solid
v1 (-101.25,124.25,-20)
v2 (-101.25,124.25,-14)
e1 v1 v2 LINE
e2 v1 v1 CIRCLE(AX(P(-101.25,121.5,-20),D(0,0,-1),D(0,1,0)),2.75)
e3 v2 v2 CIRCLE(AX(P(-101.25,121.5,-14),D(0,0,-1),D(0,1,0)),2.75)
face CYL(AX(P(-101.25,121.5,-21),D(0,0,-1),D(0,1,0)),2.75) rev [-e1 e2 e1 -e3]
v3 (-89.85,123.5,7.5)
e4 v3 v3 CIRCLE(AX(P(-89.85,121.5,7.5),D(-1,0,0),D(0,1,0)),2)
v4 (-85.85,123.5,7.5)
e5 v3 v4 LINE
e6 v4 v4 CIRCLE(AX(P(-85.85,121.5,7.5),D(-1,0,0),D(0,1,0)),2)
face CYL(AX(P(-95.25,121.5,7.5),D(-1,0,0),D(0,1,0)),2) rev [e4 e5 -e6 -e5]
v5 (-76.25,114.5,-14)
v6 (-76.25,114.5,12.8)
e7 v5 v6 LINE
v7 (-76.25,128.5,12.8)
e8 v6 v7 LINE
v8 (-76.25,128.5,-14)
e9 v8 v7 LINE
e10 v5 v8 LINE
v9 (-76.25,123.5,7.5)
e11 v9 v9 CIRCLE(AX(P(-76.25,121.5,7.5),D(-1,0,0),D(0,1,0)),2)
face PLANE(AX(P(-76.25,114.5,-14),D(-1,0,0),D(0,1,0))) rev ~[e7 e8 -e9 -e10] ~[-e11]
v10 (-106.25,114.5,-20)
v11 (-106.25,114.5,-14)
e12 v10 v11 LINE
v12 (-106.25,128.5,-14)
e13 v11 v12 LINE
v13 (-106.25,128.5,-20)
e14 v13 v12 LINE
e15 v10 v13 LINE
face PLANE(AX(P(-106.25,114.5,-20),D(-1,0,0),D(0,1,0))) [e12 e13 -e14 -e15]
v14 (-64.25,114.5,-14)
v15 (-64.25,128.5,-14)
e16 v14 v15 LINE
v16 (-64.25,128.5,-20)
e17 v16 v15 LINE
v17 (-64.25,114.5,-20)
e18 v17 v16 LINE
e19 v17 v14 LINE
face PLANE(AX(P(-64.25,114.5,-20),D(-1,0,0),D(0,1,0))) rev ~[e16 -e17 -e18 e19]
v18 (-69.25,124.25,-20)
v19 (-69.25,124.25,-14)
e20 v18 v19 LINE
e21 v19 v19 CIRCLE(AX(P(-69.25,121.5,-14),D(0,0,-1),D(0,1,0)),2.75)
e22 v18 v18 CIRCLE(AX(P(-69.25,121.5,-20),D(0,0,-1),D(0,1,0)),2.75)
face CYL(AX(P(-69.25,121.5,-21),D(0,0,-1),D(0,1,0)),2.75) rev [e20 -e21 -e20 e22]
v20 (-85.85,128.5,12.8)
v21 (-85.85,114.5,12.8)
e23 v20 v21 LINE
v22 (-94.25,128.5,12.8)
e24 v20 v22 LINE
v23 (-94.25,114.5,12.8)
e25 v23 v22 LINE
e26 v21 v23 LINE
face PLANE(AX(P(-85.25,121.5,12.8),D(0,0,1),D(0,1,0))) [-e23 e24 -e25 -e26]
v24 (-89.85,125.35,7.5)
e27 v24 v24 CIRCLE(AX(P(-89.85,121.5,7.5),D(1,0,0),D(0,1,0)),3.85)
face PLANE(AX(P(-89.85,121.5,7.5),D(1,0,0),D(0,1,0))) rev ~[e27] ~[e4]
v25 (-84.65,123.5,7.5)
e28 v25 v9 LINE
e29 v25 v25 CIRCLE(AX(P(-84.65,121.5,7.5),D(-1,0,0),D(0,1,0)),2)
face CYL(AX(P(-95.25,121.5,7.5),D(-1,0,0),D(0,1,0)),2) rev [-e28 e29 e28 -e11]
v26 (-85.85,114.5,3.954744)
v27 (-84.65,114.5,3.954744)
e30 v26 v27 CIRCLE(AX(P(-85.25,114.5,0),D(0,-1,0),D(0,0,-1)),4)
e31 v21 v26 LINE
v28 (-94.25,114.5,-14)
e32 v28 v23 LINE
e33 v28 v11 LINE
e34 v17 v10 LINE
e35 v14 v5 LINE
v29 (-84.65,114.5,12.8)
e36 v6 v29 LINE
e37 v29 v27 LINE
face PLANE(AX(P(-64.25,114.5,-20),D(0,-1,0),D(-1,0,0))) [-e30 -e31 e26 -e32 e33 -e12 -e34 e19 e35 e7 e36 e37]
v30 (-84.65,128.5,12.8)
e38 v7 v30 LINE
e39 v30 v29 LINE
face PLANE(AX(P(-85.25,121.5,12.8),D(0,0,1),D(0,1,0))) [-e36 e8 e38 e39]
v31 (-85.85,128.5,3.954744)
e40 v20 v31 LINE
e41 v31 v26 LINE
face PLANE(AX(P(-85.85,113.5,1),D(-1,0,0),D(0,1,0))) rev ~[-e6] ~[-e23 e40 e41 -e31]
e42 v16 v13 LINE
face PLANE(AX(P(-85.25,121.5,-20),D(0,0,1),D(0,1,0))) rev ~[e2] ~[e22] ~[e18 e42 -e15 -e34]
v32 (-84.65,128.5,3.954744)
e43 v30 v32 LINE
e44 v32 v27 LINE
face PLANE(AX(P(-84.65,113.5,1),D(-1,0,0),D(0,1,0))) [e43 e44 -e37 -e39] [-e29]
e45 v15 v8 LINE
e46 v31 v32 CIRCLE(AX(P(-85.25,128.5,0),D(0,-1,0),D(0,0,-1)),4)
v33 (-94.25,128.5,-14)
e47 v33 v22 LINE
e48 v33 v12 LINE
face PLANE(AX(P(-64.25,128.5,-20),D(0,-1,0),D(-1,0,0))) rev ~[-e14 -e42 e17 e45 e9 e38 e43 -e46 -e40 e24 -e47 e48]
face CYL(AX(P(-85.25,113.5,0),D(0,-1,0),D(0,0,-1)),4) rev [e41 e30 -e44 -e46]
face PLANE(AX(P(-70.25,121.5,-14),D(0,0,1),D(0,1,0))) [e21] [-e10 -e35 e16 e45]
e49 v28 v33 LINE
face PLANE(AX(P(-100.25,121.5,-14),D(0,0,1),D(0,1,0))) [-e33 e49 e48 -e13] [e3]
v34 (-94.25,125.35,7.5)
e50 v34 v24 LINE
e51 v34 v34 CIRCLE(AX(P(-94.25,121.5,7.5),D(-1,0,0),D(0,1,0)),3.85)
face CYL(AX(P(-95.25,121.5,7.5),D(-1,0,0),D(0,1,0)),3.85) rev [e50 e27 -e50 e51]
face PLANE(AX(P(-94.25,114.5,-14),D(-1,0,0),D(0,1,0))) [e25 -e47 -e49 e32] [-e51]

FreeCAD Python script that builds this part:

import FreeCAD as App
import Part
import Sketcher

V = App.Vector
Q = App.Units.Quantity

doc = App.newDocument("Part")
params = doc.addObject("Spreadsheet::Sheet", "Params")
for row, (alias, value) in enumerate([
    ("sketch1_diameter", "5.5 mm"),
    ("pad1_length", "8 mm"),
    ("sketch2_diameter", "5.5 mm"),
    ("pad2_length", "8 mm"),
    ("sketch3_diameter", "4 mm"),
    ("pad3_length", "20 mm"),
    ("sketch4_width", "16 mm"),
    ("sketch4_height", "1.2 mm"),
    ("pad4_length", "13.8 mm"),
    ("sketch5_diameter", "8 mm"),
    ("pad5_length", "16 mm"),
    ("sketch6_diameter", "7.7 mm"),
    ("pad6_length", "5.4 mm"),
    ("sketch7_width", "14 mm"),
    ("sketch7_height", "12 mm"),
    ("pad7_length", "26.8 mm"),
    ("sketch8_width", "14 mm"),
    ("sketch8_height", "12 mm"),
    ("pad8_length", "26.8 mm"),
    ("sketch9_width", "14 mm"),
    ("sketch9_height", "42 mm"),
    ("pad9_length", "32.8 mm"),
], start=1):
    params.set(f"A{row}", alias)
    params.set(f"B{row}", "=" + value)
    params.setAlias(f"B{row}", alias)

body = doc.addObject("PartDesign::Body", "Body")

sketch1 = body.newObject("Sketcher::SketchObject", "Sketch")
sketch1.AttachmentSupport = (doc.getObject("XY_Plane"), [""])
sketch1.MapMode = "FlatFace"
sketch1.AttachmentOffset = App.Placement(V(0, 0, -1), App.Rotation())
sketch1.addGeometry(Part.Circle(V(7, -16, 0), V(0, 0, 1), 2.8), False)
sketch1.addConstraint([
    Sketcher.Constraint("Diameter", 0, Q("5.5 mm")),
    Sketcher.Constraint("DistanceX", -1, 1, 0, 3, Q("7 mm")),
    Sketcher.Constraint("DistanceY", 0, 3, -1, 1, Q("16 mm")),
])
sketch1.setExpression("Constraints[0]", "Params.sketch1_diameter")
pad1 = body.newObject("PartDesign::Pad", "Pad")
pad1.Profile = sketch1
pad1.setExpression("Length", "Params.pad1_length")
body2 = doc.addObject("PartDesign::Body", "Body001")
body2.AllowCompound = True

sketch2 = body2.newObject("Sketcher::SketchObject", "Sketch001")
sketch2.AttachmentSupport = (doc.getObject("XY_Plane001"), [""])
sketch2.MapMode = "FlatFace"
sketch2.AttachmentOffset = App.Placement(V(0, 0, -1), App.Rotation())
sketch2.addGeometry(Part.Circle(V(7, 16, 0), V(0, 0, 1), 2.8), False)
sketch2.addConstraint([
    Sketcher.Constraint("Diameter", 0, Q("5.5 mm")),
    Sketcher.Constraint("DistanceX", -1, 1, 0, 3, Q("7 mm")),
    Sketcher.Constraint("DistanceY", -1, 1, 0, 3, Q("16 mm")),
])
sketch2.setExpression("Constraints[0]", "Params.sketch2_diameter")
pad2 = body2.newObject("PartDesign::Pad", "Pad001")
pad2.Profile = sketch2
pad2.setExpression("Length", "Params.pad2_length")
doc.recompute()

boolean = body2.newObject("PartDesign::Boolean", "Boolean")
boolean.Type = "Fuse"
boolean.addObjects([body])
body3 = doc.addObject("PartDesign::Body", "Body002")
body3.AllowCompound = True
doc.recompute()

body2.Placement = App.Placement(V(0, -7, 0), App.Rotation(V(0, 0, 1), 90))
boolean2 = body3.newObject("PartDesign::Boolean", "Boolean001")
boolean2.Type = "Fuse"
boolean2.addObjects([body2])
body4 = doc.addObject("PartDesign::Body", "Body003")

sketch3 = body4.newObject("Sketcher::SketchObject", "Sketch002")
sketch3.AttachmentSupport = (doc.getObject("XY_Plane003"), [""])
sketch3.MapMode = "FlatFace"
sketch3.addGeometry(Part.Circle(V(0, 0, 0), V(0, 0, 1), 2), False)
sketch3.addConstraint([
    Sketcher.Constraint("Coincident", 0, 3, -1, 1),
    Sketcher.Constraint("Diameter", 0, Q("4 mm")),
])
sketch3.setExpression("Constraints[1]", "Params.sketch3_diameter")
pad3 = body4.newObject("PartDesign::Pad", "Pad002")
pad3.Profile = sketch3
pad3.setExpression("Length", "Params.pad3_length")
body5 = doc.addObject("PartDesign::Body", "Body004")
doc.recompute()

body4.Placement = App.Placement(V(0, 0, 0), App.Rotation(V(1, 0, 0), 90))
boolean3 = body5.newObject("PartDesign::Boolean", "Boolean002")
boolean3.Type = "Fuse"
boolean3.addObjects([body4])
body6 = doc.addObject("PartDesign::Body", "Body005")
doc.recompute()

body5.Placement = App.Placement(V(7, 10, 27.5), App.Rotation(V(0, 0, 1), 0))
boolean4 = body6.newObject("PartDesign::Boolean", "Boolean003")
boolean4.Type = "Fuse"
boolean4.addObjects([body5])
body7 = doc.addObject("PartDesign::Body", "Body006")

sketch4 = body7.newObject("Sketcher::SketchObject", "Sketch003")
sketch4.AttachmentSupport = (doc.getObject("XY_Plane006"), [""])
sketch4.MapMode = "FlatFace"
sketch4.AttachmentOffset = App.Placement(V(0, 0, 21), App.Rotation())
sketch4.addGeometry([
    Part.LineSegment(V(-1, 0.6, 0), V(-1, -0.6, 0)),
    Part.LineSegment(V(-1, -0.6, 0), V(15, -0.6, 0)),
    Part.LineSegment(V(15, -0.6, 0), V(15, 0.6, 0)),
    Part.LineSegment(V(15, 0.6, 0), V(-1, 0.6, 0)),
], False)
sketch4.addConstraint([
    Sketcher.Constraint("Coincident", 0, 2, 1, 1),
    Sketcher.Constraint("Coincident", 1, 2, 2, 1),
    Sketcher.Constraint("Coincident", 2, 2, 3, 1),
    Sketcher.Constraint("Coincident", 3, 2, 0, 1),
    Sketcher.Constraint("Vertical", 0),
    Sketcher.Constraint("Horizontal", 1),
    Sketcher.Constraint("Vertical", 2),
    Sketcher.Constraint("Horizontal", 3),
    Sketcher.Constraint("DistanceX", 1, 1, 1, 2, Q("16 mm")),
    Sketcher.Constraint("DistanceY", 0, 2, 0, 1, Q("1.2 mm")),
    Sketcher.Constraint("DistanceX", 0, 2, -1, 1, Q("1 mm")),
    Sketcher.Constraint("DistanceY", 0, 2, -1, 1, Q("0.6 mm")),
])
sketch4.setExpression("Constraints[8]", "Params.sketch4_width")
sketch4.setExpression("Constraints[9]", "Params.sketch4_height")
pad4 = body7.newObject("PartDesign::Pad", "Pad003")
pad4.Profile = sketch4
pad4.setExpression("Length", "Params.pad4_length")
body8 = doc.addObject("PartDesign::Body", "Body007")

sketch5 = body8.newObject("Sketcher::SketchObject", "Sketch004")
sketch5.AttachmentSupport = (doc.getObject("XY_Plane007"), [""])
sketch5.MapMode = "FlatFace"
sketch5.addGeometry(Part.Circle(V(0, 0, 0), V(0, 0, 1), 4), False)
sketch5.addConstraint([
    Sketcher.Constraint("Coincident", 0, 3, -1, 1),
    Sketcher.Constraint("Diameter", 0, Q("8 mm")),
])
sketch5.setExpression("Constraints[1]", "Params.sketch5_diameter")
pad5 = body8.newObject("PartDesign::Pad", "Pad004")
pad5.Profile = sketch5
pad5.setExpression("Length", "Params.pad5_length")
body9 = doc.addObject("PartDesign::Body", "Body008")
doc.recompute()

body8.Placement = App.Placement(V(0, 0, 0), App.Rotation(V(0, 1, 0), 90))
boolean5 = body9.newObject("PartDesign::Boolean", "Boolean004")
boolean5.Type = "Fuse"
boolean5.addObjects([body8])
body10 = doc.addObject("PartDesign::Body", "Body009")
doc.recompute()

body9.Placement = App.Placement(V(-1, 0, 20), App.Rotation(V(0, 0, 1), 0))
boolean6 = body10.newObject("PartDesign::Boolean", "Boolean005")
boolean6.Type = "Fuse"
boolean6.addObjects([body9])
body11 = doc.addObject("PartDesign::Body", "Body010")

sketch6 = body11.newObject("Sketcher::SketchObject", "Sketch005")
sketch6.AttachmentSupport = (doc.getObject("XY_Plane010"), [""])
sketch6.MapMode = "FlatFace"
sketch6.addGeometry(Part.Circle(V(0, 0, 0), V(0, 0, 1), 3.9), False)
sketch6.addConstraint([
    Sketcher.Constraint("Coincident", 0, 3, -1, 1),
    Sketcher.Constraint("Diameter", 0, Q("7.7 mm")),
])
sketch6.setExpression("Constraints[1]", "Params.sketch6_diameter")
pad6 = body11.newObject("PartDesign::Pad", "Pad005")
pad6.Profile = sketch6
pad6.setExpression("Length", "Params.pad6_length")
body12 = doc.addObject("PartDesign::Body", "Body011")
doc.recompute()

body11.Placement = App.Placement(V(0, 0, 0), App.Rotation(V(1, 0, 0), 90))
boolean7 = body12.newObject("PartDesign::Boolean", "Boolean006")
boolean7.Type = "Fuse"
boolean7.addObjects([body11])
body13 = doc.addObject("PartDesign::Body", "Body012")
doc.recompute()

body12.Placement = App.Placement(V(7, 10, 27.5), App.Rotation(V(0, 0, 1), 0))
boolean8 = body13.newObject("PartDesign::Boolean", "Boolean007")
boolean8.Type = "Fuse"
boolean8.addObjects([body12])
doc.recompute()

boolean9 = body13.newObject("PartDesign::Boolean", "Boolean008")
boolean9.Type = "Fuse"
boolean9.addObjects([body6])
doc.recompute()

boolean10 = body13.newObject("PartDesign::Boolean", "Boolean009")
boolean10.Type = "Fuse"
boolean10.addObjects([body7])
doc.recompute()

boolean11 = body13.newObject("PartDesign::Boolean", "Boolean010")
boolean11.Type = "Fuse"
boolean11.addObjects([body10])
body14 = doc.addObject("PartDesign::Body", "Body013")

sketch7 = body14.newObject("Sketcher::SketchObject", "Sketch006")
sketch7.AttachmentSupport = (doc.getObject("XY_Plane013"), [""])
sketch7.MapMode = "FlatFace"
sketch7.AttachmentOffset = App.Placement(V(0, 0, 6), App.Rotation())
sketch7.addGeometry([
    Part.LineSegment(V(0, -9, 0), V(0, -21, 0)),
    Part.LineSegment(V(0, -21, 0), V(14, -21, 0)),
    Part.LineSegment(V(14, -21, 0), V(14, -9, 0)),
    Part.LineSegment(V(14, -9, 0), V(0, -9, 0)),
], False)
sketch7.addConstraint([
    Sketcher.Constraint("Coincident", 0, 2, 1, 1),
    Sketcher.Constraint("Coincident", 1, 2, 2, 1),
    Sketcher.Constraint("Coincident", 2, 2, 3, 1),
    Sketcher.Constraint("Coincident", 3, 2, 0, 1),
    Sketcher.Constraint("Vertical", 0),
    Sketcher.Constraint("Horizontal", 1),
    Sketcher.Constraint("Vertical", 2),
    Sketcher.Constraint("Horizontal", 3),
    Sketcher.Constraint("PointOnObject", 0, 2, -2),
    Sketcher.Constraint("DistanceX", 1, 1, 1, 2, Q("14 mm")),
    Sketcher.Constraint("DistanceY", 0, 2, 0, 1, Q("12 mm")),
    Sketcher.Constraint("DistanceY", 0, 2, -1, 1, Q("21 mm")),
])
sketch7.setExpression("Constraints[9]", "Params.sketch7_width")
sketch7.setExpression("Constraints[10]", "Params.sketch7_height")
pad7 = body14.newObject("PartDesign::Pad", "Pad006")
pad7.Profile = sketch7
pad7.setExpression("Length", "Params.pad7_length")
body15 = doc.addObject("PartDesign::Body", "Body014")
body15.AllowCompound = True

sketch8 = body15.newObject("Sketcher::SketchObject", "Sketch007")
sketch8.AttachmentSupport = (doc.getObject("XY_Plane014"), [""])
sketch8.MapMode = "FlatFace"
sketch8.AttachmentOffset = App.Placement(V(0, 0, 6), App.Rotation())
sketch8.addGeometry([
    Part.LineSegment(V(0, 21, 0), V(0, 9, 0)),
    Part.LineSegment(V(0, 9, 0), V(14, 9, 0)),
    Part.LineSegment(V(14, 9, 0), V(14, 21, 0)),
    Part.LineSegment(V(14, 21, 0), V(0, 21, 0)),
], False)
sketch8.addConstraint([
    Sketcher.Constraint("Coincident", 0, 2, 1, 1),
    Sketcher.Constraint("Coincident", 1, 2, 2, 1),
    Sketcher.Constraint("Coincident", 2, 2, 3, 1),
    Sketcher.Constraint("Coincident", 3, 2, 0, 1),
    Sketcher.Constraint("Vertical", 0),
    Sketcher.Constraint("Horizontal", 1),
    Sketcher.Constraint("Vertical", 2),
    Sketcher.Constraint("Horizontal", 3),
    Sketcher.Constraint("PointOnObject", 0, 2, -2),
    Sketcher.Constraint("DistanceX", 1, 1, 1, 2, Q("14 mm")),
    Sketcher.Constraint("DistanceY", 0, 2, 0, 1, Q("12 mm")),
    Sketcher.Constraint("DistanceY", -1, 1, 0, 2, Q("9 mm")),
])
sketch8.setExpression("Constraints[9]", "Params.sketch8_width")
sketch8.setExpression("Constraints[10]", "Params.sketch8_height")
pad8 = body15.newObject("PartDesign::Pad", "Pad007")
pad8.Profile = sketch8
pad8.setExpression("Length", "Params.pad8_length")
doc.recompute()

boolean12 = body15.newObject("PartDesign::Boolean", "Boolean011")
boolean12.Type = "Fuse"
boolean12.addObjects([body14])
body16 = doc.addObject("PartDesign::Body", "Body015")

sketch9 = body16.newObject("Sketcher::SketchObject", "Sketch008")
sketch9.AttachmentSupport = (doc.getObject("XY_Plane015"), [""])
sketch9.MapMode = "FlatFace"
sketch9.addGeometry([
    Part.LineSegment(V(0, 21, 0), V(0, -21, 0)),
    Part.LineSegment(V(0, -21, 0), V(14, -21, 0)),
    Part.LineSegment(V(14, -21, 0), V(14, 21, 0)),
    Part.LineSegment(V(14, 21, 0), V(0, 21, 0)),
], False)
sketch9.addConstraint([
    Sketcher.Constraint("Coincident", 0, 2, 1, 1),
    Sketcher.Constraint("Coincident", 1, 2, 2, 1),
    Sketcher.Constraint("Coincident", 2, 2, 3, 1),
    Sketcher.Constraint("Coincident", 3, 2, 0, 1),
    Sketcher.Constraint("Vertical", 0),
    Sketcher.Constraint("Horizontal", 1),
    Sketcher.Constraint("Vertical", 2),
    Sketcher.Constraint("Horizontal", 3),
    Sketcher.Constraint("Symmetric", 0, 2, 3, 2, -1, 1),
    Sketcher.Constraint("DistanceX", 1, 1, 1, 2, Q("14 mm")),
    Sketcher.Constraint("DistanceY", 0, 2, 0, 1, Q("42 mm")),
])
sketch9.setExpression("Constraints[9]", "Params.sketch9_width")
sketch9.setExpression("Constraints[10]", "Params.sketch9_height")
pad9 = body16.newObject("PartDesign::Pad", "Pad008")
pad9.Profile = sketch9
pad9.setExpression("Length", "Params.pad9_length")
doc.recompute()

boolean13 = body16.newObject("PartDesign::Boolean", "Boolean012")
boolean13.Type = "Cut"
boolean13.addObjects([body15])
doc.recompute()

boolean14 = body16.newObject("PartDesign::Boolean", "Boolean013")
boolean14.Type = "Cut"
boolean14.addObjects([body13])
body17 = doc.addObject("PartDesign::Body", "Body016")
doc.recompute()

body16.Placement = App.Placement(V(0, -7, 0), App.Rotation(V(0, 0, 1), 90))
boolean15 = body17.newObject("PartDesign::Boolean", "Boolean014")
boolean15.Type = "Fuse"
boolean15.addObjects([body16])
doc.recompute()

boolean16 = body17.newObject("PartDesign::Boolean", "Boolean015")
boolean16.Type = "Cut"
boolean16.addObjects([body3])
body18 = doc.addObject("PartDesign::Body", "Body017")
doc.recompute()

body17.Placement = App.Placement(V(85.25, -56.5, -20), App.Rotation(V(0, 0, 1), 0))
boolean17 = body18.newObject("PartDesign::Boolean", "Boolean016")
boolean17.Type = "Fuse"
boolean17.addObjects([body17])
body19 = doc.addObject("PartDesign::Body", "Body018")
doc.recompute()

body18.Placement = App.Placement(V(-170.5, 178, 0), App.Rotation(V(0, 0, 1), 0))
boolean18 = body19.newObject("PartDesign::Boolean", "Boolean017")
boolean18.Type = "Fuse"
boolean18.addObjects([body18])

doc.recompute()
